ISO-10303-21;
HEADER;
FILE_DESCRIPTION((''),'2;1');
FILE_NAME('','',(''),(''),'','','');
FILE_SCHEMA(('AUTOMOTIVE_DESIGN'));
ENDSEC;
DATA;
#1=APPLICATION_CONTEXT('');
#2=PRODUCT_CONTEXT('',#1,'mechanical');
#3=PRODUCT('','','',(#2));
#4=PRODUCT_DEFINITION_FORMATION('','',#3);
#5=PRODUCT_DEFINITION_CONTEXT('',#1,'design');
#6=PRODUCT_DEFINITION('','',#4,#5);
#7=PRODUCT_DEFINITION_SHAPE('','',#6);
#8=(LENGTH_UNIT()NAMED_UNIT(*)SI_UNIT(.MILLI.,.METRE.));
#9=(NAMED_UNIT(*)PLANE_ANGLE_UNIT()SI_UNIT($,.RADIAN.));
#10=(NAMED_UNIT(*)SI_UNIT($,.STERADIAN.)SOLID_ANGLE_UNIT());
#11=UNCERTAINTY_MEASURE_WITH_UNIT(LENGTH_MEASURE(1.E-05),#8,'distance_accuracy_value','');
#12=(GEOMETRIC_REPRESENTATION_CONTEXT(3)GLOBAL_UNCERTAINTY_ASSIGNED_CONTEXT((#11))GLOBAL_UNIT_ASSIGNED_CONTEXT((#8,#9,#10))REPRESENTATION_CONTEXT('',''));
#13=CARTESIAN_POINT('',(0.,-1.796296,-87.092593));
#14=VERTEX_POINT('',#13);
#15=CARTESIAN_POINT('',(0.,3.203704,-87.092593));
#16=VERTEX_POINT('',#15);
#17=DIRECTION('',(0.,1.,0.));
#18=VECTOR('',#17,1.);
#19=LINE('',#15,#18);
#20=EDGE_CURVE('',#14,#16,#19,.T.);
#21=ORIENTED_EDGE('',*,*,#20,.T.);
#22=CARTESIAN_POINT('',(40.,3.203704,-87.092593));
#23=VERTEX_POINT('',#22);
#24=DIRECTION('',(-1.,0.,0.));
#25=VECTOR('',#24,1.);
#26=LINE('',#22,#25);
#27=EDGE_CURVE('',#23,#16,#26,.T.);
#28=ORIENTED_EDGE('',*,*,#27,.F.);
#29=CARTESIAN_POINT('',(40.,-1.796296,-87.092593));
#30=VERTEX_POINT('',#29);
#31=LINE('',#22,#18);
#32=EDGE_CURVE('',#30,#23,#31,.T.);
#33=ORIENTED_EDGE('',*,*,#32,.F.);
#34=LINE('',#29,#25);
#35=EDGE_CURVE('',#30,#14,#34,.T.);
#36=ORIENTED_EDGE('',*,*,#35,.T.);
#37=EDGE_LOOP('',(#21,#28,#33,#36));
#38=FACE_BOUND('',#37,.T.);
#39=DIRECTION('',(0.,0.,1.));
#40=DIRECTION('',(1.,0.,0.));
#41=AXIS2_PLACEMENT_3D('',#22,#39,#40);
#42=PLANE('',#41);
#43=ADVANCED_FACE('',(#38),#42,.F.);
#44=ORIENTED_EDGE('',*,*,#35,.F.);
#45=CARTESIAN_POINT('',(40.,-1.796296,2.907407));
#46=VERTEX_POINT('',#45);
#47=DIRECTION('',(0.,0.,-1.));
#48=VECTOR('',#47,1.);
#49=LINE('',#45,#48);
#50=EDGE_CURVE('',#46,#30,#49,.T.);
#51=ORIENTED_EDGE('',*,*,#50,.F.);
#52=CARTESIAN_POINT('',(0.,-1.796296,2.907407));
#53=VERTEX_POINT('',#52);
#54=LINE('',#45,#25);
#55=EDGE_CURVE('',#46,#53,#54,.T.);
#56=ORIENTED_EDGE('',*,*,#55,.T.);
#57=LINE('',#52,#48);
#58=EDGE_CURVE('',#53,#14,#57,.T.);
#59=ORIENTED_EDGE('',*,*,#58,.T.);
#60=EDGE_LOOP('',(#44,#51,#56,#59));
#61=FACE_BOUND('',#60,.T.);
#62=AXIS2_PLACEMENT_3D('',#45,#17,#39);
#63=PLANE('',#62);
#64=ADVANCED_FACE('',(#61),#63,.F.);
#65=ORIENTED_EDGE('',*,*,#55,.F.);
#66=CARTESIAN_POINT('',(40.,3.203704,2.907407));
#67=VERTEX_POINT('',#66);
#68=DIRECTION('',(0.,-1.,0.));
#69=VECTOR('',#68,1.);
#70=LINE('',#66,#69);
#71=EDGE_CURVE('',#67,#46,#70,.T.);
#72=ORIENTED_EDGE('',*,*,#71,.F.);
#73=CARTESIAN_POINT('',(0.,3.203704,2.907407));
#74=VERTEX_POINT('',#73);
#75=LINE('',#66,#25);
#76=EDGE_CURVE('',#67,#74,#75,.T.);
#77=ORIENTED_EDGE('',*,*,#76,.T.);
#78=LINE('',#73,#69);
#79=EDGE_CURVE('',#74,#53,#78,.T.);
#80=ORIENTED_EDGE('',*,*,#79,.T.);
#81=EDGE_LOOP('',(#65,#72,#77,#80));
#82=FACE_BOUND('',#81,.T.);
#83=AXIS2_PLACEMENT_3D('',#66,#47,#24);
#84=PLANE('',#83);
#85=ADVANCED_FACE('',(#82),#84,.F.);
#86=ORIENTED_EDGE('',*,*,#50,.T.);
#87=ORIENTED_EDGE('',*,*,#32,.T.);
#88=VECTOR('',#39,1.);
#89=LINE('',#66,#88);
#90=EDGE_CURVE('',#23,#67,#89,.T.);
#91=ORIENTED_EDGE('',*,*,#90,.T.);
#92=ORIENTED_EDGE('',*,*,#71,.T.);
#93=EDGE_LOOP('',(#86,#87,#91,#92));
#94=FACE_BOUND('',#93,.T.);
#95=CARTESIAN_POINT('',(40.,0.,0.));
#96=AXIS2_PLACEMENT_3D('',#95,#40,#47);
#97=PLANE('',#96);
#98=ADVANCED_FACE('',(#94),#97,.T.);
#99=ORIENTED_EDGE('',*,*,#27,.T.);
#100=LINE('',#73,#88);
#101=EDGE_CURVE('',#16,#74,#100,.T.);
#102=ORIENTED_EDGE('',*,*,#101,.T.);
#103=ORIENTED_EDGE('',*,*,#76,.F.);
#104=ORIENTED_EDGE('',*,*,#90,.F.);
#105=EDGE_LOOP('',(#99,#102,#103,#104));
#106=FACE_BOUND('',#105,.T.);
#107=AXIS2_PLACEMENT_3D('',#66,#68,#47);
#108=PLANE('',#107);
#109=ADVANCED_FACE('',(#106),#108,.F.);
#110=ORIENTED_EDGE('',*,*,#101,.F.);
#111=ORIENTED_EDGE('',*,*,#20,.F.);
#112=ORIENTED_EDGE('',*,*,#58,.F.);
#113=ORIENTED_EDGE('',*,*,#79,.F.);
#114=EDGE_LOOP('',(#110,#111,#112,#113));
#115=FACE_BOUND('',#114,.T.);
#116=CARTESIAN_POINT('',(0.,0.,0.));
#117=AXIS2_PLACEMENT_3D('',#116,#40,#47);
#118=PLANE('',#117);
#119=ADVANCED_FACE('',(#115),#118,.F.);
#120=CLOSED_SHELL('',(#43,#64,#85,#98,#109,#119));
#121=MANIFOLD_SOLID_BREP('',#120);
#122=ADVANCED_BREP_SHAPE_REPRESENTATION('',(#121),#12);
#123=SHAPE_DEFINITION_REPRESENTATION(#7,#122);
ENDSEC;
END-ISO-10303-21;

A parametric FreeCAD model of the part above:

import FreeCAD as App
import Part
import Sketcher

doc = App.newDocument("Part")
body = doc.addObject("PartDesign::Body", "Body")

# Sketch on YZ plane
sketch1 = body.newObject("Sketcher::SketchObject", "Sketch")
sketch1.AttachmentSupport = (doc.getObject("YZ_Plane"), [""])
sketch1.MapMode = "FlatFace"
sketch1.addGeometry([
    Part.LineSegment(App.Vector(3, 3, 0), App.Vector(-2, 3, 0)),
    Part.LineSegment(App.Vector(-2, 3, 0), App.Vector(-2, -87, 0)),
    Part.LineSegment(App.Vector(-2, -87, 0), App.Vector(3, -87, 0)),
    Part.LineSegment(App.Vector(3, -87, 0), App.Vector(3, 3, 0)),
], False)
sketch1.addConstraint([
    Sketcher.Constraint("Coincident", 0, 2, 1, 1),
    Sketcher.Constraint("Coincident", 1, 2, 2, 1),
    Sketcher.Constraint("Coincident", 2, 2, 3, 1),
    Sketcher.Constraint("Coincident", 3, 2, 0, 1),
    Sketcher.Constraint("Horizontal", 0),
    Sketcher.Constraint("Vertical", 1),
    Sketcher.Constraint("Horizontal", 2),
    Sketcher.Constraint("Vertical", 3),
    Sketcher.Constraint("DistanceX", 0, 2, 0, 1, 5.0),
    Sketcher.Constraint("DistanceY", 1, 2, 1, 1, 90.0),
    Sketcher.Constraint("DistanceX", 0, 2, -1, 1, 1.796296),
    Sketcher.Constraint("DistanceY", -1, 1, 0, 2, 2.907407),
])
pad1 = body.newObject("PartDesign::Pad", "Pad")
pad1.Profile = sketch1
pad1.Length = 40

doc.recompute()
